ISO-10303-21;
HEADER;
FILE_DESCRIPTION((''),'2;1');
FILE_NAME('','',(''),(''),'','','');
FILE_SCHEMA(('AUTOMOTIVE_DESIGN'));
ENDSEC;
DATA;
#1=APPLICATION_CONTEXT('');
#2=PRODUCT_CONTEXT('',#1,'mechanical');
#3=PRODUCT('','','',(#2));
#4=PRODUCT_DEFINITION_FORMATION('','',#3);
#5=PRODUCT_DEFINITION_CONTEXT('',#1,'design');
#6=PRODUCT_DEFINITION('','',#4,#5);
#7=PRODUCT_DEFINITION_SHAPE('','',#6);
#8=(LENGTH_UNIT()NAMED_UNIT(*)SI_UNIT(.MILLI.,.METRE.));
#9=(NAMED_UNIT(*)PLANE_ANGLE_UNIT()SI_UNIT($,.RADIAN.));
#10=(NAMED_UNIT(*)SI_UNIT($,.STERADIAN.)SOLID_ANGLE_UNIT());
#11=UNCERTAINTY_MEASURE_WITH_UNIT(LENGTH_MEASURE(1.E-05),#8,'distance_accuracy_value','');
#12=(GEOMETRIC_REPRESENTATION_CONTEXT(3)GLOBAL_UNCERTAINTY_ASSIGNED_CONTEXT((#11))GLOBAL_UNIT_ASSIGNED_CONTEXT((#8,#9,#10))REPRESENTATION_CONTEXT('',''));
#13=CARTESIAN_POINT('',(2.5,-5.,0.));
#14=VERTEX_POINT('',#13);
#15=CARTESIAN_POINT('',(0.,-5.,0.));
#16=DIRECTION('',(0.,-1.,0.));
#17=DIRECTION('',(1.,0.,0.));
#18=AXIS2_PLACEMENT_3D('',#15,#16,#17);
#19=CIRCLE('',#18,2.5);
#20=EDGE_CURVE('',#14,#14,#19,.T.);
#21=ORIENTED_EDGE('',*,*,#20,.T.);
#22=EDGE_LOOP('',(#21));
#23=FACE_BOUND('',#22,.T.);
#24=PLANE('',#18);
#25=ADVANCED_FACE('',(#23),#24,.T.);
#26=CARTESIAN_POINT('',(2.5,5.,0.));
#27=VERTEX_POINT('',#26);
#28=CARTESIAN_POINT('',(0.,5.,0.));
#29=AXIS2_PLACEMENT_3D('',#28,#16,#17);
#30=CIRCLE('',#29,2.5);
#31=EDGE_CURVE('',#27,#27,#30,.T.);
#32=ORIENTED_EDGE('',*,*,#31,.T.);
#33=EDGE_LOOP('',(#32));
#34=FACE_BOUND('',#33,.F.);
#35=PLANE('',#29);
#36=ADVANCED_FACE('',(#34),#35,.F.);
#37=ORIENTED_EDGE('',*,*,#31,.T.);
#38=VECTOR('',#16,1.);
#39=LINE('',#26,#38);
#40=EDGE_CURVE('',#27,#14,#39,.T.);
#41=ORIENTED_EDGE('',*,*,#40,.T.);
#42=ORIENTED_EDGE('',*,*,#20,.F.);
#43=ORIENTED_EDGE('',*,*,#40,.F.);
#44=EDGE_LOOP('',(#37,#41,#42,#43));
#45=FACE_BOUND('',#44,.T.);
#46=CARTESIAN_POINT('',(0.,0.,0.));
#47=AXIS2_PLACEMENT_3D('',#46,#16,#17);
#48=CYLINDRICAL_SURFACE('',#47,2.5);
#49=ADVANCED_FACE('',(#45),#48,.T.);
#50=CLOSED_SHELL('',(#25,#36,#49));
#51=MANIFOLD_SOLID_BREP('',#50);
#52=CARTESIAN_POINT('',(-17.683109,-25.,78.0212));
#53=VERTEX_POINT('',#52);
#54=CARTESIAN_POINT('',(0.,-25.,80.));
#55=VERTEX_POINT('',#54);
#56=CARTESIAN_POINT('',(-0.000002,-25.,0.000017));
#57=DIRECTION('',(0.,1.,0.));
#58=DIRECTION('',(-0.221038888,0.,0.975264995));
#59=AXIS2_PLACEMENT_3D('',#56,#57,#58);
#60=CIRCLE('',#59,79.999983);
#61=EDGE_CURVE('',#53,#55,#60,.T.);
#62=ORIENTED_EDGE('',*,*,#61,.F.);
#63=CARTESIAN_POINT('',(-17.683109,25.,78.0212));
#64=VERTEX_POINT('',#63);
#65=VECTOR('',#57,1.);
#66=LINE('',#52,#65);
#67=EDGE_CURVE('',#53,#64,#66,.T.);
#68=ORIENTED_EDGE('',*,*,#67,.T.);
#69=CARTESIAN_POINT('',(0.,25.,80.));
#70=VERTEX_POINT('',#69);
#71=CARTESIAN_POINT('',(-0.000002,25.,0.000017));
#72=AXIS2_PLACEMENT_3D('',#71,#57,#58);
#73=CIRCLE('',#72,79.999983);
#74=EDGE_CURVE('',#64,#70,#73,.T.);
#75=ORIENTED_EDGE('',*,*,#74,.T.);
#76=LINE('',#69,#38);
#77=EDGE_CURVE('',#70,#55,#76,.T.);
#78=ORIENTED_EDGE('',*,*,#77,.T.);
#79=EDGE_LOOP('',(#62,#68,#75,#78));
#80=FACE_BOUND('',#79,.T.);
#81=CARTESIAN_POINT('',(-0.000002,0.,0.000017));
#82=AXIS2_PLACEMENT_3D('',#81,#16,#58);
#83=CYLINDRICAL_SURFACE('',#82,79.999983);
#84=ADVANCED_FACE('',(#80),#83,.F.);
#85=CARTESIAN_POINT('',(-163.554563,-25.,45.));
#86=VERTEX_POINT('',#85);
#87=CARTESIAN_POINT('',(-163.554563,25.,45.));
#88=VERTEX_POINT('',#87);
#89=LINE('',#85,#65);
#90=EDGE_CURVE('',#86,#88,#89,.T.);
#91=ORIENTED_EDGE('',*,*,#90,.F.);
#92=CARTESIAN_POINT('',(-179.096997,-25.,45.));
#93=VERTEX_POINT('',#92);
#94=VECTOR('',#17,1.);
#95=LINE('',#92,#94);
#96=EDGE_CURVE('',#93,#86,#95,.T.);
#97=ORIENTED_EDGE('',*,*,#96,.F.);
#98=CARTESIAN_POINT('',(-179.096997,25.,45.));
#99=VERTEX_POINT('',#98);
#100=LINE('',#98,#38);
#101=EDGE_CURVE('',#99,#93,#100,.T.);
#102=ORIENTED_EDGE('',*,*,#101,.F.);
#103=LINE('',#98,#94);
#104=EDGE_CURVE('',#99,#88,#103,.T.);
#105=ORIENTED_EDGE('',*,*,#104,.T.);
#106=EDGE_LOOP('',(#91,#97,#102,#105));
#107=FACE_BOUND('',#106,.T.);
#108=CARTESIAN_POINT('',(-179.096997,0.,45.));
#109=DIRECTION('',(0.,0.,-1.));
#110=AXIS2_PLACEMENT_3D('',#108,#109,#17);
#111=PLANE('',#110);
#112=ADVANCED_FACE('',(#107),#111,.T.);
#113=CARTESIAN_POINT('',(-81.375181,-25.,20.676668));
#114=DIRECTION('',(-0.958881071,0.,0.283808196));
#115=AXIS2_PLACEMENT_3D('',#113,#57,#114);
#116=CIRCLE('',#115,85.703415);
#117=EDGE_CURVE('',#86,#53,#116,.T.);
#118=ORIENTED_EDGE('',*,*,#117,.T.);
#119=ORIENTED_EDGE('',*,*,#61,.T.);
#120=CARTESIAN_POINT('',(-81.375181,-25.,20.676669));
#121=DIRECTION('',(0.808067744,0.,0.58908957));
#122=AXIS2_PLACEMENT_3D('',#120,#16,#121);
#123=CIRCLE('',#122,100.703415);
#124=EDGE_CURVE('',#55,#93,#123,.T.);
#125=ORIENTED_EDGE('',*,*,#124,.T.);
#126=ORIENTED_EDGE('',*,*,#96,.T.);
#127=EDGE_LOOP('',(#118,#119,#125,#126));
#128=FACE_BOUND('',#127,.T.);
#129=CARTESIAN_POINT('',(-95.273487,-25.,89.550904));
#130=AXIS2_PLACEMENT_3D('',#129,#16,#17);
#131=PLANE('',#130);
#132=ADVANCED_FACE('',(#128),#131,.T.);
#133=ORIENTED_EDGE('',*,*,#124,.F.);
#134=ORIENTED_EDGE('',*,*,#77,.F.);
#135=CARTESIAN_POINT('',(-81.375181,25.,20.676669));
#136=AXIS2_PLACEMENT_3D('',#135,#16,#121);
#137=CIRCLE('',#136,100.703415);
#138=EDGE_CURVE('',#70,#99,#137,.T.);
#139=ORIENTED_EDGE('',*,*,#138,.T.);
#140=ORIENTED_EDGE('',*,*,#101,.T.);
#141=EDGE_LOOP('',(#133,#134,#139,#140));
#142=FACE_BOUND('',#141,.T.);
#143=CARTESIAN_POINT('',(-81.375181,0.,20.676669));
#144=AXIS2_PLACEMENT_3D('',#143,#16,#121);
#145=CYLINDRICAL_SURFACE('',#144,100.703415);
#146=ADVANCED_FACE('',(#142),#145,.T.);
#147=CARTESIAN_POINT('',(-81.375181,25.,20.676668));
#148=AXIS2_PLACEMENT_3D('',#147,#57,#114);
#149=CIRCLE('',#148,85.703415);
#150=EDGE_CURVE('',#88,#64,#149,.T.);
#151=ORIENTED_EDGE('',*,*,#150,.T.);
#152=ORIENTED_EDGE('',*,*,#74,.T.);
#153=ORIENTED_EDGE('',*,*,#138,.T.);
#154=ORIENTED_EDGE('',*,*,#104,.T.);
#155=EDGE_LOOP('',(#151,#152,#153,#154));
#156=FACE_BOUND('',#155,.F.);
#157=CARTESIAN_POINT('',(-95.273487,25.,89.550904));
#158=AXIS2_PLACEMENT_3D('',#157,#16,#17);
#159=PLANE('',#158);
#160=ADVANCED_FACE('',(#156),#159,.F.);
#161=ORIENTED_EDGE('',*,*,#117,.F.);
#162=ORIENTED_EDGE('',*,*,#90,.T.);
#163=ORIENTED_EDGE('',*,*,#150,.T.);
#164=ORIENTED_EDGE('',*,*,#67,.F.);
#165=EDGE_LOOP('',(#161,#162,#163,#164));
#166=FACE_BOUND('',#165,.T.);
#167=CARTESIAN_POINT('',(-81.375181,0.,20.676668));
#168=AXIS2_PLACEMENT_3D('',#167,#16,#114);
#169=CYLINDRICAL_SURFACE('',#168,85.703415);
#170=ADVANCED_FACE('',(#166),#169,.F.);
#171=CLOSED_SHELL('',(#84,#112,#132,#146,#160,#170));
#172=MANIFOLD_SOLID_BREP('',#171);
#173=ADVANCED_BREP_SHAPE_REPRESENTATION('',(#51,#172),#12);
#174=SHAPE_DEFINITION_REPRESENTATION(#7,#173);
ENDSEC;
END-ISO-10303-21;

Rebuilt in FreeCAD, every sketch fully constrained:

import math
import FreeCAD as App
import Part
import Sketcher
Q = App.Units.Quantity

doc = App.newDocument("Part")
body = doc.addObject("PartDesign::Body", "Body")

sketch1 = body.newObject("Sketcher::SketchObject", "Sketch")
sketch1.AttachmentSupport = (doc.getObject("XZ_Plane"), [""])
sketch1.MapMode = "FlatFace"
sketch1.addGeometry(Part.ArcOfCircle(Part.Circle(App.Vector(0, 0, 0), App.Vector(0, 0, 1), 80), math.radians(90), math.radians(102.77)), False)
sketch1.addGeometry(Part.ArcOfCircle(Part.Circle(App.Vector(-81, 21, 0), App.Vector(0, 0, 1), 101), math.radians(36), math.radians(166)), False)
sketch1.addGeometry(Part.LineSegment(App.Vector(-179, 45, 0), App.Vector(-164, 45, 0)), False)
sketch1.addGeometry(Part.ArcOfCircle(Part.Circle(App.Vector(-81, 21, 0), App.Vector(0, 0, 1), 86), math.radians(42), math.radians(164)), False)
sketch1.addConstraint(Sketcher.Constraint("Coincident", 0, 1, 1, 1))
sketch1.addConstraint(Sketcher.Constraint("Coincident", 1, 2, 2, 1))
sketch1.addConstraint(Sketcher.Constraint("Coincident", 2, 2, 3, 2))
sketch1.addConstraint(Sketcher.Constraint("Coincident", 3, 1, 0, 2))
sketch1.addConstraint(Sketcher.Constraint("Horizontal", 2))
sketch1.addConstraint(Sketcher.Constraint("Coincident", 3, 3, 1, 3))
sketch1.addConstraint(Sketcher.Constraint("PointOnObject", 0, 3, -2))
sketch1.addConstraint(Sketcher.Constraint("PointOnObject", 0, 1, -2))
sketch1.addConstraint(Sketcher.Constraint("DistanceY", -1, 1, 0, 1, Q("80 mm")))
sketch1.addConstraint(Sketcher.Constraint("DistanceY", -1, 1, 1, 2, Q("45 mm")))
sketch1.addConstraint(Sketcher.Constraint("Radius", 0, Q("79.999983 mm")))
sketch1.addConstraint(Sketcher.Constraint("Radius", 1, Q("100.703415 mm")))
sketch1.addConstraint(Sketcher.Constraint("Radius", 3, Q("85.703415 mm")))
sketch1.addConstraint(Sketcher.Constraint("DistanceX", 2, 1, 2, 2, Q("15.542434 mm")))
pad1 = body.newObject("PartDesign::Pad", "Pad")
pad1.Profile = sketch1
pad1.Length = 50
pad1.Midplane = True
body2 = doc.addObject("PartDesign::Body", "Body001")

sketch2 = body2.newObject("Sketcher::SketchObject", "Sketch001")
sketch2.AttachmentSupport = (doc.getObject("XZ_Plane001"), [""])
sketch2.MapMode = "FlatFace"
sketch2.addGeometry(Part.Circle(App.Vector(0, 0, 0), App.Vector(0, 0, 1), 2.5), False)
sketch2.addConstraint(Sketcher.Constraint("Coincident", 0, 3, -1, 1))
sketch2.addConstraint(Sketcher.Constraint("Diameter", 0, Q("5 mm")))
pad2 = body2.newObject("PartDesign::Pad", "Pad001")
pad2.Profile = sketch2
pad2.Length = 10
pad2.Midplane = True

doc.recompute()
